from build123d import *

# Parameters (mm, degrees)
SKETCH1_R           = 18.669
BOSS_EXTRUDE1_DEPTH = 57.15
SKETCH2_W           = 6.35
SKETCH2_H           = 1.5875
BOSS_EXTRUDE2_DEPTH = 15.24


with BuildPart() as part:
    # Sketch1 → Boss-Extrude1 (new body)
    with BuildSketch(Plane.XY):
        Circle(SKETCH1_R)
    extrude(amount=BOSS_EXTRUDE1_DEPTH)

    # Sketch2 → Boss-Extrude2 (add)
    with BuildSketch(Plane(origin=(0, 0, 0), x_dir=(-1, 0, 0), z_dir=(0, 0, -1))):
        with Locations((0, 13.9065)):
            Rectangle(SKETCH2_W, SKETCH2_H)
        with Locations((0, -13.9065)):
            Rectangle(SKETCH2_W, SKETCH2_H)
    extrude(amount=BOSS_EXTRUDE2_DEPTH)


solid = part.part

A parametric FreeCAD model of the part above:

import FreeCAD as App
import Part
import Sketcher
Q = App.Units.Quantity


def add_polygon(sketch, points):
    """Adds a closed chain of lines whose ends are joined by coincident constraints."""
    first, n = sketch.GeometryCount, len(points)
    for a, b in zip(points, points[1:] + points[:1]):
        sketch.addGeometry(Part.LineSegment(App.Vector(*a, 0), App.Vector(*b, 0)), False)
    for i in range(n):
        sketch.addConstraint(Sketcher.Constraint("Coincident", first + i, 2, first + (i + 1) % n, 1))

doc = App.newDocument("Part")
body = doc.addObject("PartDesign::Body", "Body")

sketch1 = doc.addObject("Sketcher::SketchObject", "Sketch")
body.addObject(sketch1)
sketch1.AttachmentSupport = (doc.XY_Plane, [""])
sketch1.MapMode = "FlatFace"
sketch1.addGeometry(Part.Circle(App.Vector(0, 0, 0), App.Vector(0, 0, 1), 19), False)
sketch1.addConstraint([
    Sketcher.Constraint("Coincident", 0, 3, -1, 1),
    Sketcher.Constraint("Diameter", 0, Q("1.47 in")),
])
pad1 = doc.addObject("PartDesign::Pad", "Pad")
body.addObject(pad1)
pad1.Profile = sketch1
pad1.Length = Q("2.25 in")

sketch2 = doc.addObject("Sketcher::SketchObject", "Sketch001")
body.addObject(sketch2)
sketch2.AttachmentSupport = (doc.XY_Plane, [""])
sketch2.MapMode = "FlatFace"
add_polygon(sketch2, [(3.2, 14.7), (3.2, 13.1), (-3.2, 13.1), (-3.2, 14.7)])
add_polygon(sketch2, [(3.2, -13.1), (3.2, -14.7), (-3.2, -14.7), (-3.2, -13.1)])
sketch2.addConstraint([
    Sketcher.Constraint("Vertical", 0),
    Sketcher.Constraint("Horizontal", 1),
    Sketcher.Constraint("Vertical", 2),
    Sketcher.Constraint("Horizontal", 3),
    Sketcher.Constraint("Vertical", 4),
    Sketcher.Constraint("Horizontal", 5),
    Sketcher.Constraint("Vertical", 6),
    Sketcher.Constraint("Horizontal", 7),
    Sketcher.Constraint("Symmetric", 2, 2, 4, 2, -1, 1),
    Sketcher.Constraint("Symmetric", 0, 2, 6, 2, -1, 1),
    Sketcher.Constraint("Vertical", 3, 2, 4, 2),
    Sketcher.Constraint("DistanceX", 1, 2, 1, 1, Q("0.25 in")),
    Sketcher.Constraint("DistanceY", 0, 2, 0, 1, Q("0.0625 in")),
    Sketcher.Constraint("DistanceY", 4, 2, 0, 2, Q("1.095 in")),
])
pad2 = doc.addObject("PartDesign::Pad", "Pad001")
body.addObject(pad2)
pad2.Profile = sketch2
pad2.Length = Q("0.6 in")
pad2.Reversed = True

doc.recompute()
